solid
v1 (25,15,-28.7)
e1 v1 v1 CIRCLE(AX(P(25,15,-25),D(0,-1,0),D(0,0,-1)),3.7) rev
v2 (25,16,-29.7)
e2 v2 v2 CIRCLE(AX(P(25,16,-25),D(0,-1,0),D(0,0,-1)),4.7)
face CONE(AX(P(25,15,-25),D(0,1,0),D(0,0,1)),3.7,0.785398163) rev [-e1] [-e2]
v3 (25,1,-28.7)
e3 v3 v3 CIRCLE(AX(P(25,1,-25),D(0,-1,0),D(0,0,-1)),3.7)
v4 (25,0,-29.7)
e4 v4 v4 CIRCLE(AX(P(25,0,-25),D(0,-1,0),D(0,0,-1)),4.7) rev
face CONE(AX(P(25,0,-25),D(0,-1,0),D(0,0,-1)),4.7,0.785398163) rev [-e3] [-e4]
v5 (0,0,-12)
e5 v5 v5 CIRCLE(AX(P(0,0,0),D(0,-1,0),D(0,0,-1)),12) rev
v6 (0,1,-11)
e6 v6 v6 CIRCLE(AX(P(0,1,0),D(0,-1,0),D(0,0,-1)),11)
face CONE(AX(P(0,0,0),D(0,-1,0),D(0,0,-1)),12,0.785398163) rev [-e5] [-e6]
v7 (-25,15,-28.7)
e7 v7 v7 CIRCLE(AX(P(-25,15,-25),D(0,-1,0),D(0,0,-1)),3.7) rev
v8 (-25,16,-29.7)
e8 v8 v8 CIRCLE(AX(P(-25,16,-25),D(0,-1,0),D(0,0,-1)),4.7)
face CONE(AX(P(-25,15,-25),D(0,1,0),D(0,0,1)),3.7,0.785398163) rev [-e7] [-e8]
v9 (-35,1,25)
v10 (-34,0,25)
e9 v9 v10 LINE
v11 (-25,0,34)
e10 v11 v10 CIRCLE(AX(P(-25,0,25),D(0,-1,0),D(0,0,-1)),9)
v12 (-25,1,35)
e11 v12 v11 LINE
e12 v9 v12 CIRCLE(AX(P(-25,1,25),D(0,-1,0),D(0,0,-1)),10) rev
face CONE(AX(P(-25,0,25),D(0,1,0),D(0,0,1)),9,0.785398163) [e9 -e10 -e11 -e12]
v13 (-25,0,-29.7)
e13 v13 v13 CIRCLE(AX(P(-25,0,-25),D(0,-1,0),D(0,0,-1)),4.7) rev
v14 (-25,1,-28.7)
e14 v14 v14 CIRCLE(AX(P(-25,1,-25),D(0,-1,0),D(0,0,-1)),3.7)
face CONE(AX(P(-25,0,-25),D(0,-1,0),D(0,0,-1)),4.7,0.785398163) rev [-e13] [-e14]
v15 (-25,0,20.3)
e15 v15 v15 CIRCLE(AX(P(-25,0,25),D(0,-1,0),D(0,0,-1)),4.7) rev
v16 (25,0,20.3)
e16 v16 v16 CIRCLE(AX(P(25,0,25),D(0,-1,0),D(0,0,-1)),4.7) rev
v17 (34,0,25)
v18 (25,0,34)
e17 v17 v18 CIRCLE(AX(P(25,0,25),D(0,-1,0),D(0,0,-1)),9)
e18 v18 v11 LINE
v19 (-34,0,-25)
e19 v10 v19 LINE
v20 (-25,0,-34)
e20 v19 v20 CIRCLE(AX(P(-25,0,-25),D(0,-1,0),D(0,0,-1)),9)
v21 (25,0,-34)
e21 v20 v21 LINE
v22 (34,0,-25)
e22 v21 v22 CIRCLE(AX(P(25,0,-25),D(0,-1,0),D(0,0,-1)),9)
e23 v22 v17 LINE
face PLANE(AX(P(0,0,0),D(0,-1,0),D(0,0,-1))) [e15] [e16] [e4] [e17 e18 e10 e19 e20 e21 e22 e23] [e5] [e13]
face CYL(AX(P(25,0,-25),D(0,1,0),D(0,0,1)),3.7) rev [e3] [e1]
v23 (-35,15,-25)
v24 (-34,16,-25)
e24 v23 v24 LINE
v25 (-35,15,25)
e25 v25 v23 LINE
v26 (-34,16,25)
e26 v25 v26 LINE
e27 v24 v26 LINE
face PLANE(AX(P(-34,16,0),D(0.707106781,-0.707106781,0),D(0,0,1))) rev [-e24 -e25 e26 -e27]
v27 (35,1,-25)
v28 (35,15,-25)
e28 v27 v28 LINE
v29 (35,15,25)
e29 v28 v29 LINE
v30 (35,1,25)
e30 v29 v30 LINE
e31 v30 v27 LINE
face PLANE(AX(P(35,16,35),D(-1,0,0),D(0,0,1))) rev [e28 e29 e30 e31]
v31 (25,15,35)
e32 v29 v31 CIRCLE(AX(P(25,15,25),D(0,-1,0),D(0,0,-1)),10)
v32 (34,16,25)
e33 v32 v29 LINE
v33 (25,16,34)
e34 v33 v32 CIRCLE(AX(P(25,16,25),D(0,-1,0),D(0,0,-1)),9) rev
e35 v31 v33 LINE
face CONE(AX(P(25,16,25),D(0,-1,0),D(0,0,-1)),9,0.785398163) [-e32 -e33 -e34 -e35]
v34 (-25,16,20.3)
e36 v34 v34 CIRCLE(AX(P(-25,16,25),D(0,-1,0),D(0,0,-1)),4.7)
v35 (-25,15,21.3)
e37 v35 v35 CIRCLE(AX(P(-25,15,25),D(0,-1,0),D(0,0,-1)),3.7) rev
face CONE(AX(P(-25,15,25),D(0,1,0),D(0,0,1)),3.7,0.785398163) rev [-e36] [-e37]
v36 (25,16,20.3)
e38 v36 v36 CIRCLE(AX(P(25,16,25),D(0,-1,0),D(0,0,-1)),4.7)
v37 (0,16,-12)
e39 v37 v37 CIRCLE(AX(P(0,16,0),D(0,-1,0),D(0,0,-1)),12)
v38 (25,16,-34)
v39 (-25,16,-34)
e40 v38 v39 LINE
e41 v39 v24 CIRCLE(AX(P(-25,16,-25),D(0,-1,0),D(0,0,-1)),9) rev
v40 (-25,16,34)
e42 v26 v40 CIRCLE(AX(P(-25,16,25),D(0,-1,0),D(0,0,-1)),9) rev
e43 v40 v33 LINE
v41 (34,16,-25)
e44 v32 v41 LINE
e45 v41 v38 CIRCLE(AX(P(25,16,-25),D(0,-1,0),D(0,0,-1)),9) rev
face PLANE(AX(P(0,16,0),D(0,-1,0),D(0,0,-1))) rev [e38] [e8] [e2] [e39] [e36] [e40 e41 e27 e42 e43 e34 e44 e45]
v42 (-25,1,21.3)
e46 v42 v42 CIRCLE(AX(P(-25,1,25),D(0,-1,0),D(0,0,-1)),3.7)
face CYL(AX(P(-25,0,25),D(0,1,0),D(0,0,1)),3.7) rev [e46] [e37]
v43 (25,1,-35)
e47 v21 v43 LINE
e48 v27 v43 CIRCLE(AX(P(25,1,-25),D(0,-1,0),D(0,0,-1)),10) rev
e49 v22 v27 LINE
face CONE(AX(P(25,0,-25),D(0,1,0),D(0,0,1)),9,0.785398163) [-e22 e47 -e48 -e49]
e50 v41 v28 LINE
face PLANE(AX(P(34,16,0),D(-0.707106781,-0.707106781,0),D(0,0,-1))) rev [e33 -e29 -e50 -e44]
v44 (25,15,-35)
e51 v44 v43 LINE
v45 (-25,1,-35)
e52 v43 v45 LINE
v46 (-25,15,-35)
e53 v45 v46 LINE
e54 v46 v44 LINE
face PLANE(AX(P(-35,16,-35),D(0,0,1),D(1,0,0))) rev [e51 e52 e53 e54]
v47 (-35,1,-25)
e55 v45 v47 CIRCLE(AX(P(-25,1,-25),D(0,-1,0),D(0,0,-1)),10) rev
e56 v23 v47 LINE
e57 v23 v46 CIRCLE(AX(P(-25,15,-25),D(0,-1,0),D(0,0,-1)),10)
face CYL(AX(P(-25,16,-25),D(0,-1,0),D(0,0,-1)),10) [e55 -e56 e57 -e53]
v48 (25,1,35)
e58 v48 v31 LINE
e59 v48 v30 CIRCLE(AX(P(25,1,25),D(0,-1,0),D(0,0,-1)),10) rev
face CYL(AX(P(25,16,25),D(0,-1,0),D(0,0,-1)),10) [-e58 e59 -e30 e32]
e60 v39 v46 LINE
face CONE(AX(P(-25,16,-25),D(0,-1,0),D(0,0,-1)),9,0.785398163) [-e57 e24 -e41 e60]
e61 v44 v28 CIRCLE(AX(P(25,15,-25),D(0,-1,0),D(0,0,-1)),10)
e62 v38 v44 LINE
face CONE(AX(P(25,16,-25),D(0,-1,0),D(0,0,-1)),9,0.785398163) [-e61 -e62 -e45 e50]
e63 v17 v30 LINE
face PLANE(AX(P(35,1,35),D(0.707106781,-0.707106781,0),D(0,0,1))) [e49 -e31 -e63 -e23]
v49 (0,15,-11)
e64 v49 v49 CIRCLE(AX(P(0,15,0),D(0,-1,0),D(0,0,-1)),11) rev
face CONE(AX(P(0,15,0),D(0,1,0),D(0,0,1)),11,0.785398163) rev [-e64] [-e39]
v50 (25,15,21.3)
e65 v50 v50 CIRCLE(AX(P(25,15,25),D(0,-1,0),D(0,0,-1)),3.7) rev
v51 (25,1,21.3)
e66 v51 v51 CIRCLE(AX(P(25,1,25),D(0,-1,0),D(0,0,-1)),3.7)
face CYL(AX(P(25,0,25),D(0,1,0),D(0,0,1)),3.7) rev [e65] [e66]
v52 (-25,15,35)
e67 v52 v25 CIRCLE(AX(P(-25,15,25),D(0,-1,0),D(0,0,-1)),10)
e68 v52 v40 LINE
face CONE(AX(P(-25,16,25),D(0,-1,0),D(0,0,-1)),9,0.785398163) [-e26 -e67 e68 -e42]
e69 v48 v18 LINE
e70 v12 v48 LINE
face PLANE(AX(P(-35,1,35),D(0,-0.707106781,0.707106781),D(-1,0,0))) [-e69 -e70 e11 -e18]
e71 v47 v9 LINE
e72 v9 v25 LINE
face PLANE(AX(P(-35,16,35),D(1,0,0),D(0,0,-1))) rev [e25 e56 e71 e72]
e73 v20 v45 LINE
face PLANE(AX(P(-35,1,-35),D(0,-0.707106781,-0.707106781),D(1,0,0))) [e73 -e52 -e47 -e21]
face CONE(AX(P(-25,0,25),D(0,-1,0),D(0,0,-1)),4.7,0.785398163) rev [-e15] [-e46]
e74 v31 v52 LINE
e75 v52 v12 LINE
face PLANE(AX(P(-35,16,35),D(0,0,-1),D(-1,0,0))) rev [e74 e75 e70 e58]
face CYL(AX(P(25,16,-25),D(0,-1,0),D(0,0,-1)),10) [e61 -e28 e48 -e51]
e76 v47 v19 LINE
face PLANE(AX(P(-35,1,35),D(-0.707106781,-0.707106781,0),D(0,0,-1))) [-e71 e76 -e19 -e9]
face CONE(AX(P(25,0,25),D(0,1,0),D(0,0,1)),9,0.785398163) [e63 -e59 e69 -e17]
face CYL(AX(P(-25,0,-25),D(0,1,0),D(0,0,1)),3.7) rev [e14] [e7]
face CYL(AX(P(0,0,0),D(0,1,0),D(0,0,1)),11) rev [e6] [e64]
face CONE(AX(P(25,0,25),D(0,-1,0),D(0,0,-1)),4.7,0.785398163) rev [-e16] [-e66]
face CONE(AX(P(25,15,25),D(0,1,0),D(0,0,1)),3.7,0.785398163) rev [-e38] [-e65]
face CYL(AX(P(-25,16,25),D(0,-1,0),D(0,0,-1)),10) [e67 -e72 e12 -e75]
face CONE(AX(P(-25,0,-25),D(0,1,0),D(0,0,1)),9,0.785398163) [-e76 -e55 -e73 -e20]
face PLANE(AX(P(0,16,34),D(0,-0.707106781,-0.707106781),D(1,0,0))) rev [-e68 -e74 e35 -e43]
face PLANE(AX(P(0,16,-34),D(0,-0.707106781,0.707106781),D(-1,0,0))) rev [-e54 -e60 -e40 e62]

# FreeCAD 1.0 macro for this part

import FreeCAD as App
import Part
import Sketcher
from FreeCAD import Vector
Q = App.Units.Quantity


def edges_at(feature, points):
    """Names of the edges that pass closest to the given points."""
    edges = feature.Shape.Edges
    near = lambda p: min(range(len(edges)), key=lambda i: edges[i].distToShape(Part.Vertex(*p))[0])
    return sorted({f"Edge{near(p) + 1}" for p in points})


def add_polygon(sketch, points):
    """Adds a closed chain of lines whose ends are joined by coincident constraints."""
    first, n = sketch.GeometryCount, len(points)
    for a, b in zip(points, points[1:] + points[:1]):
        sketch.addGeometry(Part.LineSegment(App.Vector(*a, 0), App.Vector(*b, 0)), False)
    for i in range(n):
        sketch.addConstraint(Sketcher.Constraint("Coincident", first + i, 2, first + (i + 1) % n, 1))

doc = App.newDocument("Part")
body = doc.addObject("PartDesign::Body", "Body")

# Sketch on XZ plane
sketch1 = doc.addObject("Sketcher::SketchObject", "Sketch")
body.addObject(sketch1)
sketch1.AttachmentSupport = (doc.XZ_Plane, [""])
sketch1.MapMode = "FlatFace"
add_polygon(sketch1, [(-35, -35), (-35, 35), (35, 35), (35, -35)])  # lines 0-3
sketch1.addConstraint([
    Sketcher.Constraint("Vertical", 0),
    Sketcher.Constraint("Horizontal", 1),
    Sketcher.Constraint("Vertical", 2),
    Sketcher.Constraint("Horizontal", 3),
    Sketcher.Constraint("Symmetric", 0, 2, 2, 2, -1, 1),
    Sketcher.Constraint("Equal", 3, 0),
    Sketcher.Constraint("DistanceX", 1, 1, 1, 2, Q("70 mm")),
])
pad1 = doc.addObject("PartDesign::Pad", "Pad")
body.addObject(pad1)
pad1.Profile = sketch1
pad1.Length = 16
pad1.Reversed = True

# Sketch on XZ plane
sketch2 = doc.addObject("Sketcher::SketchObject", "Sketch001")
body.addObject(sketch2)
sketch2.AttachmentSupport = (doc.XZ_Plane, [""])
sketch2.MapMode = "FlatFace"
sketch2.AttachmentOffset = App.Placement(Vector(0, 0, -16), App.Rotation())
sketch2.addGeometry([
    Part.Circle(Vector(0, 0, 0), Vector(0, 0, 1), 11),  # 0
    Part.Circle(Vector(-25, -25, 0), Vector(0, 0, 1), 3.7),  # 1
    Part.Circle(Vector(25, -25, 0), Vector(0, 0, 1), 3.7),  # 2
    Part.Circle(Vector(25, 25, 0), Vector(0, 0, 1), 3.7),  # 3
    Part.Circle(Vector(-25, 25, 0), Vector(0, 0, 1), 3.7),  # 4
], False)
sketch2.addConstraint([
    Sketcher.Constraint("Coincident", 0, 3, -1, 1),
    Sketcher.Constraint("Equal", 1, 2),
    Sketcher.Constraint("Equal", 2, 3),
    Sketcher.Constraint("Equal", 3, 4),
    Sketcher.Constraint("Symmetric", 1, 3, 3, 3, -1, 1),
    Sketcher.Constraint("Symmetric", 2, 3, 4, 3, -1, 1),
    Sketcher.Constraint("Symmetric", 1, 3, 2, 3, -2),
    Sketcher.Constraint("Diameter", 0, Q("22 mm")),
    Sketcher.Constraint("Diameter", 1, Q("7.4 mm")),
    Sketcher.Constraint("DistanceX", 1, 3, -1, 1, Q("25 mm")),
    Sketcher.Constraint("DistanceY", 1, 3, -1, 1, Q("25 mm")),
])
pocket1 = doc.addObject("PartDesign::Pocket", "Pocket")
body.addObject(pocket1)
pocket1.Profile = sketch2
pocket1.Type = "ThroughAll"
pocket1.Reversed = True
doc.recompute()

fillet = doc.addObject("PartDesign::Fillet", "Fillet")
body.addObject(fillet)
fillet.Base = (pocket1, edges_at(pocket1, [
    (35, 8, 35),
    (-35, 8, 35),
    (-35, 8, -35),
    (35, 8, -35),
]))
fillet.Radius = 10
doc.recompute()

chamfer = doc.addObject("PartDesign::Chamfer", "Chamfer")
body.addObject(chamfer)
chamfer.Base = (fillet, edges_at(fillet, [
    (-25, 0, 21.3),
    (-25, 16, 21.3),
    (25, 0, 21.3),
    (25, 16, 21.3),
    (25, 0, -28.7),
    (25, 16, -28.7),
    (-25, 0, -28.7),
    (-25, 16, -28.7),
    (0, 0, -11),
    (0, 16, -11),
    (0, 0, 35),
    (0, 16, 35),
    (35, 0, 0),
    (-35, 0, 0),
    (0, 0, -35),
    (32.071, 0, -32.071),
    (32.071, 0, 32.071),
    (-32.071, 0, -32.071),
    (-32.071, 0, 32.071),
    (-35, 16, 0),
    (35, 16, 0),
    (0, 16, -35),
    (32.071, 16, -32.071),
    (32.071, 16, 32.071),
    (-32.071, 16, -32.071),
    (-32.071, 16, 32.071),
]))
chamfer.Size = 1

doc.recompute()
